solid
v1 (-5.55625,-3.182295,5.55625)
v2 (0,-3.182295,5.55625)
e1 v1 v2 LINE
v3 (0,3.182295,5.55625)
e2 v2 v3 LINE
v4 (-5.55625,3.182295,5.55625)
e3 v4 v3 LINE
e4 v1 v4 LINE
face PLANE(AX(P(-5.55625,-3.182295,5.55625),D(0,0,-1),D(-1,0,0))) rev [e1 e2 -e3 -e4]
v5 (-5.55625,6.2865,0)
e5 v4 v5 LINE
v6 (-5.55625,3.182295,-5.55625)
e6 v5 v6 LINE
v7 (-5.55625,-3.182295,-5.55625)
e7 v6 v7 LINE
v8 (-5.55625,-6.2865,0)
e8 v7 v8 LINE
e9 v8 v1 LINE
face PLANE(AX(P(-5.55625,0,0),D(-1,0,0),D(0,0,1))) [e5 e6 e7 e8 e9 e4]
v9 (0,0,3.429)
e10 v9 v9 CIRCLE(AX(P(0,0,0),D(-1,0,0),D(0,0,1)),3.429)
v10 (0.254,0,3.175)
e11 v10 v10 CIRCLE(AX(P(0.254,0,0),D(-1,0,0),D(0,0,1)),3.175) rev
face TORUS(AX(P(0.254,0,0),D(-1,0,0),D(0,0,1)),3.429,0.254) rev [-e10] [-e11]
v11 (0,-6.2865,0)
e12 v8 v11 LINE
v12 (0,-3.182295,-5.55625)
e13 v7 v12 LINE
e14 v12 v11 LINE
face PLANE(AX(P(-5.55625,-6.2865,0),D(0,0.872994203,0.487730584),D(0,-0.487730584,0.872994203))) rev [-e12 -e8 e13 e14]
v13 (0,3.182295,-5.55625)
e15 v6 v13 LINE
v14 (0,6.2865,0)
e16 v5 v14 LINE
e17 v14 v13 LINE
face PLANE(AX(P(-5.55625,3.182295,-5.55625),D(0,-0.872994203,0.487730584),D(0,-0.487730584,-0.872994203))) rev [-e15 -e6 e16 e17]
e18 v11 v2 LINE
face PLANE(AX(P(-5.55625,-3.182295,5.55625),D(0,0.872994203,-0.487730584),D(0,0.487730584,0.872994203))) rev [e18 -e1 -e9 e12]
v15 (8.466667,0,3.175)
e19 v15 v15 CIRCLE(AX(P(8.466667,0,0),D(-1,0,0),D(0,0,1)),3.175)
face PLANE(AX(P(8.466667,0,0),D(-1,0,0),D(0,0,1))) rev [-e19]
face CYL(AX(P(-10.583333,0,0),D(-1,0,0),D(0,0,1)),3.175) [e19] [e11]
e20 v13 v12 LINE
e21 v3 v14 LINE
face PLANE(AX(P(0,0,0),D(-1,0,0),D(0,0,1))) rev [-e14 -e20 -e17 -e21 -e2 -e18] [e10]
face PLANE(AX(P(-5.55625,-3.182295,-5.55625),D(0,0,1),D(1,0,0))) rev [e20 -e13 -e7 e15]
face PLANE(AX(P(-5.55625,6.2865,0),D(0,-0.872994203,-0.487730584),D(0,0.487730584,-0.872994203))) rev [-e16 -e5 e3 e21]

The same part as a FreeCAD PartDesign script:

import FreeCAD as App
import Part
import Sketcher

V = App.Vector
Q = App.Units.Quantity


def edges_at(feature, points):
    """Names of the edges that pass closest to the given points."""
    edges = feature.Shape.Edges
    near = lambda p: min(range(len(edges)), key=lambda i: edges[i].distToShape(Part.Vertex(*p))[0])
    return sorted({f"Edge{near(p) + 1}" for p in points})


def add_polygon(sketch, points):
    """Adds a closed chain of lines whose ends are joined by coincident constraints."""
    first, n = sketch.GeometryCount, len(points)
    for a, b in zip(points, points[1:] + points[:1]):
        sketch.addGeometry(Part.LineSegment(App.Vector(*a, 0), App.Vector(*b, 0)), False)
    for i in range(n):
        sketch.addConstraint(Sketcher.Constraint("Coincident", first + i, 2, first + (i + 1) % n, 1))

doc = App.newDocument("Part")
body = doc.addObject("PartDesign::Body", "Body")

# Sketch on XY plane
sketch1 = body.newObject("Sketcher::SketchObject", "Sketch")
sketch1.AttachmentSupport = (doc.getObject("XY_Plane"), [""])
sketch1.MapMode = "FlatFace"
add_polygon(sketch1, [(0, 3.175), (0, 0), (8.466667, 0), (8.466667, 3.175)])  # lines 0-3
sketch1.addConstraint([
    Sketcher.Constraint("Vertical", 0),
    Sketcher.Constraint("Horizontal", 1),
    Sketcher.Constraint("Vertical", 2),
    Sketcher.Constraint("Horizontal", 3),
    Sketcher.Constraint("Coincident", 0, 2, -1, 1),
    Sketcher.Constraint("DistanceY", 0, 2, 0, 1, Q("0.125 in")),
    Sketcher.Constraint("DistanceX", 1, 1, 1, 2, 8.466667),
])
revolution = body.newObject("PartDesign::Revolution", "Revolution")
revolution.Profile = sketch1
revolution.ReferenceAxis = (sketch1, ["H_Axis"])
revolution.Angle = 360

# Sketch on YZ plane
sketch2 = body.newObject("Sketcher::SketchObject", "Sketch001")
sketch2.AttachmentSupport = (doc.getObject("YZ_Plane"), [""])
sketch2.MapMode = "FlatFace"
add_polygon(sketch2, [(3.182295, -5.55625), (-3.182295, -5.55625), (-6.2865, 0), (-3.182295, 5.55625), (3.182295, 5.55625), (6.2865, 0)])  # lines 0-5
sketch2.addConstraint([
    Sketcher.Constraint("Horizontal", 0),
    Sketcher.Constraint("Horizontal", 3),
    Sketcher.Constraint("Symmetric", 0, 2, 3, 2, -1, 1),
    Sketcher.Constraint("Symmetric", 1, 2, 4, 2, -1, 1),
    Sketcher.Constraint("PointOnObject", 1, 2, -1),
    Sketcher.Constraint("Parallel", 2, 5),
    Sketcher.Constraint("Vertical", 0, 2, 2, 2),
    Sketcher.Constraint("DistanceY", 0, 2, -1, 1, Q("0.21875 in")),
    Sketcher.Constraint("DistanceX", 1, 2, 4, 2, Q("0.495 in")),
    Sketcher.Constraint("DistanceX", 0, 2, 0, 1, 6.36459),
])
pad1 = body.newObject("PartDesign::Pad", "Pad")
pad1.Profile = sketch2
pad1.Length = Q("0.21875 in")
pad1.Reversed = True
doc.recompute()

fillet = body.newObject("PartDesign::Fillet", "Fillet")
fillet.Base = (pad1, edges_at(pad1, [(0, 0, -3.175)]))
fillet.Radius = Q("0.01 in")

doc.recompute()
